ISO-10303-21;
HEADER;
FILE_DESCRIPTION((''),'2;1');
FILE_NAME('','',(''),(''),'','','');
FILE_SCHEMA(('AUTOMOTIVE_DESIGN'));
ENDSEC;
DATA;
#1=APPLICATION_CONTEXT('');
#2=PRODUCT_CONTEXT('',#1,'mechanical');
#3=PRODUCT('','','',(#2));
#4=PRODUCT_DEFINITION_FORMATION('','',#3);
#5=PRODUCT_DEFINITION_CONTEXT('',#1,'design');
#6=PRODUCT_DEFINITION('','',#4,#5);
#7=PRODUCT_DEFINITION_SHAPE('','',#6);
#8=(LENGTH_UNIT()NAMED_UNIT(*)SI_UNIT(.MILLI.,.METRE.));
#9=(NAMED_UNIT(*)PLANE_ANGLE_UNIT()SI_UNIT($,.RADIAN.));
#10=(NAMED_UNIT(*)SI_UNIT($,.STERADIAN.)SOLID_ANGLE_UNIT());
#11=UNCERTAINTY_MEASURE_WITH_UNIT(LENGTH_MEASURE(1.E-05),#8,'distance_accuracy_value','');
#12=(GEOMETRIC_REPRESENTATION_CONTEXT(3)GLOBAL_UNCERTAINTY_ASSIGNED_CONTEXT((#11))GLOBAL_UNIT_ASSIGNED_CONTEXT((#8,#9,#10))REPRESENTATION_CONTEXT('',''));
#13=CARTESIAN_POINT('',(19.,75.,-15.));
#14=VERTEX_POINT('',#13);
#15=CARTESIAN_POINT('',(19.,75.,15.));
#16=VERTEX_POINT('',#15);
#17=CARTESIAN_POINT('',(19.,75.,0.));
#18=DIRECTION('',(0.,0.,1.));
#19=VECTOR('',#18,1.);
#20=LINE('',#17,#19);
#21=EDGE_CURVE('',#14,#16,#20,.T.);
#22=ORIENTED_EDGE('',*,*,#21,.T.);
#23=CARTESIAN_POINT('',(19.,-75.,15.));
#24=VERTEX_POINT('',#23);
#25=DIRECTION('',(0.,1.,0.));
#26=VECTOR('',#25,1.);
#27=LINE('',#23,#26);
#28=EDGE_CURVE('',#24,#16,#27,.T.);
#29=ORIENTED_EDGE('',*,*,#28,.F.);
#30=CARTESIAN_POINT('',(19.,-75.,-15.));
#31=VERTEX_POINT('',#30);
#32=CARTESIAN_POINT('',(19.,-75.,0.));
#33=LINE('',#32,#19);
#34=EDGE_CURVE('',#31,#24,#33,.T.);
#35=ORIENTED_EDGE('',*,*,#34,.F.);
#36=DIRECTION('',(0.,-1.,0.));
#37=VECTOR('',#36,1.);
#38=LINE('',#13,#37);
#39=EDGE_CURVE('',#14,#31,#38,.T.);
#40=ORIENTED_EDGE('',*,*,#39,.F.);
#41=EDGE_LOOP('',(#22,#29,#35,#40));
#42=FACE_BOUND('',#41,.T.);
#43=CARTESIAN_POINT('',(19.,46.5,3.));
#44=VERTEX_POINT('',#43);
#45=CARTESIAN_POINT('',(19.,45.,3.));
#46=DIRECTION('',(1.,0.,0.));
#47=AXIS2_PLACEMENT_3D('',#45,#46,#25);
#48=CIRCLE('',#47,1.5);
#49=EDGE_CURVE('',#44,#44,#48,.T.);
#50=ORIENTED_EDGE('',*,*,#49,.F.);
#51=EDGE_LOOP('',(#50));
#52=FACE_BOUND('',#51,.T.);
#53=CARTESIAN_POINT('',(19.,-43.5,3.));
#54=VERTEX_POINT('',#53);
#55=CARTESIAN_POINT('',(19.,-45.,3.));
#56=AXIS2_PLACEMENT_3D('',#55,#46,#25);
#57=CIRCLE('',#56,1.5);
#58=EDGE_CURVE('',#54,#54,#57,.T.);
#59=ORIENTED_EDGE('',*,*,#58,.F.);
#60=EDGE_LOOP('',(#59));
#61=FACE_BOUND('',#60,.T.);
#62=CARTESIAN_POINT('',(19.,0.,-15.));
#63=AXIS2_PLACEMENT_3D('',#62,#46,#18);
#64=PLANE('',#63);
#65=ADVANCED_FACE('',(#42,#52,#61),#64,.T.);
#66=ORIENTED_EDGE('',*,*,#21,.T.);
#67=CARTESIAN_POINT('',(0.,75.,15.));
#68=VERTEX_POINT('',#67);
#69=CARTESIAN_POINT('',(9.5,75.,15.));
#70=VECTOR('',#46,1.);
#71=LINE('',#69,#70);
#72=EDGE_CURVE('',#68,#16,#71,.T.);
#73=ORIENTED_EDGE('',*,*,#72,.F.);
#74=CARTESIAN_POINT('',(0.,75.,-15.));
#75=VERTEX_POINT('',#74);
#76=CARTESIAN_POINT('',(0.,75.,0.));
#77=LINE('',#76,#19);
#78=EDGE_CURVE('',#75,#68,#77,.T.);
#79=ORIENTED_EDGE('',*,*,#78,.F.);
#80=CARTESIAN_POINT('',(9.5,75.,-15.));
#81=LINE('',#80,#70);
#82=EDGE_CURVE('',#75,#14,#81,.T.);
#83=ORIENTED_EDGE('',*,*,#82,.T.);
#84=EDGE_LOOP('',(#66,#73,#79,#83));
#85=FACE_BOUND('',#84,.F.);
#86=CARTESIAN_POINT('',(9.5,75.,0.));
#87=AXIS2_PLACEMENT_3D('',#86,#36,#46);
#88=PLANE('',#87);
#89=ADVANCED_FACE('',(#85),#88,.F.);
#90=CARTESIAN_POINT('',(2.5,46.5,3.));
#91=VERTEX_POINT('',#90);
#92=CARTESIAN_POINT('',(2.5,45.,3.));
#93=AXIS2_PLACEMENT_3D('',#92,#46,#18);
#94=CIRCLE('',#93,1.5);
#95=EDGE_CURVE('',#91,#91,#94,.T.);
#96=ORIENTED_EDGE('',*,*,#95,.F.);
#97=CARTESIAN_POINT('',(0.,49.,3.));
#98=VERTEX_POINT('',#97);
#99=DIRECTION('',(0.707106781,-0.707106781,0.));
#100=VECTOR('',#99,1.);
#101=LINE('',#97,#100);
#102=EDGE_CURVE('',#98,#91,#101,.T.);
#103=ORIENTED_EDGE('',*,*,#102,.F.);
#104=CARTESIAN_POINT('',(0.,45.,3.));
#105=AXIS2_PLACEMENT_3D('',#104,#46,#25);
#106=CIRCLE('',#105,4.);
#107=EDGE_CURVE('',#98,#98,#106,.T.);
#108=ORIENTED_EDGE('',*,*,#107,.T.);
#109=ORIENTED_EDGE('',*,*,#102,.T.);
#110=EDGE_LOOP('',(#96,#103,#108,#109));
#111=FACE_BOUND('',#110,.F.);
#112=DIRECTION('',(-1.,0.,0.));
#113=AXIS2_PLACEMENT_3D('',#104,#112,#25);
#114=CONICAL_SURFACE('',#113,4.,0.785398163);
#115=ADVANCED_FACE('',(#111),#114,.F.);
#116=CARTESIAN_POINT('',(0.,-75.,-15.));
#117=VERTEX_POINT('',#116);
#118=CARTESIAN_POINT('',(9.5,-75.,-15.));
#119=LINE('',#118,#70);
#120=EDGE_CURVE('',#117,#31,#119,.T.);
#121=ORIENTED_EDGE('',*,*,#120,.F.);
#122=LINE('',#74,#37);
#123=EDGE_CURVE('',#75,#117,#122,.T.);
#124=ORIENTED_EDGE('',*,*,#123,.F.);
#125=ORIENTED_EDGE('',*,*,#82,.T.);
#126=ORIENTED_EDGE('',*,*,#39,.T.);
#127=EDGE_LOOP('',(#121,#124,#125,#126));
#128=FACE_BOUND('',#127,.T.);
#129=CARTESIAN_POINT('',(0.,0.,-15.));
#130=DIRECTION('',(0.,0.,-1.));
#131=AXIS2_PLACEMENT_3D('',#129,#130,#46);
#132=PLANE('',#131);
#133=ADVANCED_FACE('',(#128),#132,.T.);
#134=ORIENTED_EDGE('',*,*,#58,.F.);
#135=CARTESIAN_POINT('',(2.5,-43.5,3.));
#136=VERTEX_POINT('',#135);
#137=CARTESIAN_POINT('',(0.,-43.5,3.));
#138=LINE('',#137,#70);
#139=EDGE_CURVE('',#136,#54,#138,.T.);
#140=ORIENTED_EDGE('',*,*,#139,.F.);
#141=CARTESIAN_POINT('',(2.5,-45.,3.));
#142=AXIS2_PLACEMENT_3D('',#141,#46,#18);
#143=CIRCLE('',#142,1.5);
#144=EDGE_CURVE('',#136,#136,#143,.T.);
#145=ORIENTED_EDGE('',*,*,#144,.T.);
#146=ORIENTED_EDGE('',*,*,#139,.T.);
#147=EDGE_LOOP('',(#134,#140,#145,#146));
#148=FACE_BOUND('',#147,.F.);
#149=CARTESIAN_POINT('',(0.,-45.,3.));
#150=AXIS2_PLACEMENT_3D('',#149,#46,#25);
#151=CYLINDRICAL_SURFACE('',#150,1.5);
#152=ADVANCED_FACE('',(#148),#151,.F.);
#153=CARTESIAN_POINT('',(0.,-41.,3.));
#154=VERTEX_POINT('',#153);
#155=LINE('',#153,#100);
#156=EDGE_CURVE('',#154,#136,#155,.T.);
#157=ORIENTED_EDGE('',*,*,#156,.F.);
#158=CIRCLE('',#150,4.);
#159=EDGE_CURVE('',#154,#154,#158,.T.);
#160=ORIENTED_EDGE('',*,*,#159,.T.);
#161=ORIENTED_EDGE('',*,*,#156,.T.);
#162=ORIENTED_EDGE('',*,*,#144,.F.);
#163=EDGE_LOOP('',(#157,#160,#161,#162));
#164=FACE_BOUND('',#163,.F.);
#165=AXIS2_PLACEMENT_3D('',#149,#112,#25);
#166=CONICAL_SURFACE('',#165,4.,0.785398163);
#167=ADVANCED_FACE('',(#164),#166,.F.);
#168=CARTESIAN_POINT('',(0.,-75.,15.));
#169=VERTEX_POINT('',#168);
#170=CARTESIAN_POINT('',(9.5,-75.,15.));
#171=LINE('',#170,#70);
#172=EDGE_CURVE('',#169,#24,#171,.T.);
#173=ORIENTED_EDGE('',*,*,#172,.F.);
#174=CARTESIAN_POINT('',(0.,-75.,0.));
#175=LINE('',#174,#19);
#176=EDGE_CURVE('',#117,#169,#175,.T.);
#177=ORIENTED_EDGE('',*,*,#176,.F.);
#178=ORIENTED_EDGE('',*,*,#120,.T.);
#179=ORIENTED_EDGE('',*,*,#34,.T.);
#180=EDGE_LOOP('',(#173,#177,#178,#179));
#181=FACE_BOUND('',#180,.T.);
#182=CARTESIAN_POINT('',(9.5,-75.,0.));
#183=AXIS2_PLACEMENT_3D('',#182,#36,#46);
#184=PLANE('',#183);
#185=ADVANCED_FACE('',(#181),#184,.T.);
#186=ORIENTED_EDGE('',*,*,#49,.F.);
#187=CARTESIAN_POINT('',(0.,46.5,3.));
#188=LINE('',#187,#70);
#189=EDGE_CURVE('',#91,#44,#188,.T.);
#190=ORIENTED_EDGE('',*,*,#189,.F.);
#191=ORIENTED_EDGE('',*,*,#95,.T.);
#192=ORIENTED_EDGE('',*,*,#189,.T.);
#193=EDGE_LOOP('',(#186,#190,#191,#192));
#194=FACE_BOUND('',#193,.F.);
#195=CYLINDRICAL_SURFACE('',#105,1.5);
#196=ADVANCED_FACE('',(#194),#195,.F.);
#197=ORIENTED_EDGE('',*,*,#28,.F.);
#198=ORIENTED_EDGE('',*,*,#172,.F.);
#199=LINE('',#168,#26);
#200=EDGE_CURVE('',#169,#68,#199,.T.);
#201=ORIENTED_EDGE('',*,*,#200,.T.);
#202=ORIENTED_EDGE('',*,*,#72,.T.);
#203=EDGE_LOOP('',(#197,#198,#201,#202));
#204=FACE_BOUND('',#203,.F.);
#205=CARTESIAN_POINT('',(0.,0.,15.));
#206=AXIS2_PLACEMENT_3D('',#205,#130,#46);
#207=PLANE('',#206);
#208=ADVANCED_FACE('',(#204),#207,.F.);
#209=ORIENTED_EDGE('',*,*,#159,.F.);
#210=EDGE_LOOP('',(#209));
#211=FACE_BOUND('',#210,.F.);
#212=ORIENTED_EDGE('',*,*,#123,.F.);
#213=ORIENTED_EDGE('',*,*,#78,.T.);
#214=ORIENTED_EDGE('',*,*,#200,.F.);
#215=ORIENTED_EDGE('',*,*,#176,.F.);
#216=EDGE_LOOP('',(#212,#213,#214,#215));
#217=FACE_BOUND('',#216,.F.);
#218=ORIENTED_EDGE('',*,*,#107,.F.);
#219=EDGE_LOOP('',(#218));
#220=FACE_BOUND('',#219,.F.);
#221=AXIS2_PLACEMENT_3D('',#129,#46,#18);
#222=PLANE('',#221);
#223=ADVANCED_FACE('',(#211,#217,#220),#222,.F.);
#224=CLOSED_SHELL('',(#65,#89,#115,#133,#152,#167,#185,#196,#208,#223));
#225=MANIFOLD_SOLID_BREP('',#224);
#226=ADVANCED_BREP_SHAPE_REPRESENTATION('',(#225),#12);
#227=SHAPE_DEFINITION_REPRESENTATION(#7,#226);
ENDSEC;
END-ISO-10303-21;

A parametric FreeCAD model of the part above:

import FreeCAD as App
import Part
import Sketcher

doc = App.newDocument("Part")
body = doc.addObject("PartDesign::Body", "Body")

sketch1 = body.newObject("Sketcher::SketchObject", "Sketch")
sketch1.AttachmentSupport = (doc.getObject("XZ_Plane"), [""])
sketch1.MapMode = "FlatFace"
sketch1.addGeometry([
    Part.LineSegment(App.Vector(0, 15, 0), App.Vector(0, -15, 0)),
    Part.LineSegment(App.Vector(0, -15, 0), App.Vector(19, -15, 0)),
    Part.LineSegment(App.Vector(19, -15, 0), App.Vector(19, 15, 0)),
    Part.LineSegment(App.Vector(19, 15, 0), App.Vector(0, 15, 0)),
], False)
sketch1.addConstraint([
    Sketcher.Constraint("Coincident", 0, 2, 1, 1),
    Sketcher.Constraint("Coincident", 1, 2, 2, 1),
    Sketcher.Constraint("Coincident", 2, 2, 3, 1),
    Sketcher.Constraint("Coincident", 3, 2, 0, 1),
    Sketcher.Constraint("Vertical", 0),
    Sketcher.Constraint("Horizontal", 1),
    Sketcher.Constraint("Vertical", 2),
    Sketcher.Constraint("Horizontal", 3),
    Sketcher.Constraint("Symmetric", 0, 2, 3, 2, -1, 1),
    Sketcher.Constraint("DistanceX", 1, 1, 1, 2, 19.0),
    Sketcher.Constraint("DistanceY", 0, 2, 0, 1, 30.0),
])
pad1 = body.newObject("PartDesign::Pad", "Pad")
pad1.Profile = sketch1
pad1.Length = 150
pad1.Midplane = True

sketch2 = body.newObject("Sketcher::SketchObject", "Sketch001")
sketch2.AttachmentSupport = (doc.getObject("YZ_Plane"), [""])
sketch2.MapMode = "FlatFace"
sketch2.addGeometry([
    Part.Circle(App.Vector(45, 3, 0), App.Vector(0, 0, 1), 1.5),
    Part.Circle(App.Vector(-45, 3, 0), App.Vector(0, 0, 1), 1.5),
], False)
sketch2.addConstraint([
    Sketcher.Constraint("Equal", 0, 1),
    Sketcher.Constraint("Symmetric", 0, 3, 1, 3, -2),
    Sketcher.Constraint("Diameter", 0, 3.0),
    Sketcher.Constraint("DistanceX", -1, 1, 0, 3, 45.0),
    Sketcher.Constraint("DistanceY", -1, 1, 0, 3, 3.0),
])
doc.recompute()
hole = body.newObject("PartDesign::Hole", "Hole")
hole.Profile = sketch2
hole.ThreadType = "None"
hole.Diameter = 3
hole.DepthType = "ThroughAll"
hole.HoleCutType = "Countersink"
hole.HoleCutDiameter = 8
hole.HoleCutCountersinkAngle = 90
hole.Reversed = True

doc.recompute()
